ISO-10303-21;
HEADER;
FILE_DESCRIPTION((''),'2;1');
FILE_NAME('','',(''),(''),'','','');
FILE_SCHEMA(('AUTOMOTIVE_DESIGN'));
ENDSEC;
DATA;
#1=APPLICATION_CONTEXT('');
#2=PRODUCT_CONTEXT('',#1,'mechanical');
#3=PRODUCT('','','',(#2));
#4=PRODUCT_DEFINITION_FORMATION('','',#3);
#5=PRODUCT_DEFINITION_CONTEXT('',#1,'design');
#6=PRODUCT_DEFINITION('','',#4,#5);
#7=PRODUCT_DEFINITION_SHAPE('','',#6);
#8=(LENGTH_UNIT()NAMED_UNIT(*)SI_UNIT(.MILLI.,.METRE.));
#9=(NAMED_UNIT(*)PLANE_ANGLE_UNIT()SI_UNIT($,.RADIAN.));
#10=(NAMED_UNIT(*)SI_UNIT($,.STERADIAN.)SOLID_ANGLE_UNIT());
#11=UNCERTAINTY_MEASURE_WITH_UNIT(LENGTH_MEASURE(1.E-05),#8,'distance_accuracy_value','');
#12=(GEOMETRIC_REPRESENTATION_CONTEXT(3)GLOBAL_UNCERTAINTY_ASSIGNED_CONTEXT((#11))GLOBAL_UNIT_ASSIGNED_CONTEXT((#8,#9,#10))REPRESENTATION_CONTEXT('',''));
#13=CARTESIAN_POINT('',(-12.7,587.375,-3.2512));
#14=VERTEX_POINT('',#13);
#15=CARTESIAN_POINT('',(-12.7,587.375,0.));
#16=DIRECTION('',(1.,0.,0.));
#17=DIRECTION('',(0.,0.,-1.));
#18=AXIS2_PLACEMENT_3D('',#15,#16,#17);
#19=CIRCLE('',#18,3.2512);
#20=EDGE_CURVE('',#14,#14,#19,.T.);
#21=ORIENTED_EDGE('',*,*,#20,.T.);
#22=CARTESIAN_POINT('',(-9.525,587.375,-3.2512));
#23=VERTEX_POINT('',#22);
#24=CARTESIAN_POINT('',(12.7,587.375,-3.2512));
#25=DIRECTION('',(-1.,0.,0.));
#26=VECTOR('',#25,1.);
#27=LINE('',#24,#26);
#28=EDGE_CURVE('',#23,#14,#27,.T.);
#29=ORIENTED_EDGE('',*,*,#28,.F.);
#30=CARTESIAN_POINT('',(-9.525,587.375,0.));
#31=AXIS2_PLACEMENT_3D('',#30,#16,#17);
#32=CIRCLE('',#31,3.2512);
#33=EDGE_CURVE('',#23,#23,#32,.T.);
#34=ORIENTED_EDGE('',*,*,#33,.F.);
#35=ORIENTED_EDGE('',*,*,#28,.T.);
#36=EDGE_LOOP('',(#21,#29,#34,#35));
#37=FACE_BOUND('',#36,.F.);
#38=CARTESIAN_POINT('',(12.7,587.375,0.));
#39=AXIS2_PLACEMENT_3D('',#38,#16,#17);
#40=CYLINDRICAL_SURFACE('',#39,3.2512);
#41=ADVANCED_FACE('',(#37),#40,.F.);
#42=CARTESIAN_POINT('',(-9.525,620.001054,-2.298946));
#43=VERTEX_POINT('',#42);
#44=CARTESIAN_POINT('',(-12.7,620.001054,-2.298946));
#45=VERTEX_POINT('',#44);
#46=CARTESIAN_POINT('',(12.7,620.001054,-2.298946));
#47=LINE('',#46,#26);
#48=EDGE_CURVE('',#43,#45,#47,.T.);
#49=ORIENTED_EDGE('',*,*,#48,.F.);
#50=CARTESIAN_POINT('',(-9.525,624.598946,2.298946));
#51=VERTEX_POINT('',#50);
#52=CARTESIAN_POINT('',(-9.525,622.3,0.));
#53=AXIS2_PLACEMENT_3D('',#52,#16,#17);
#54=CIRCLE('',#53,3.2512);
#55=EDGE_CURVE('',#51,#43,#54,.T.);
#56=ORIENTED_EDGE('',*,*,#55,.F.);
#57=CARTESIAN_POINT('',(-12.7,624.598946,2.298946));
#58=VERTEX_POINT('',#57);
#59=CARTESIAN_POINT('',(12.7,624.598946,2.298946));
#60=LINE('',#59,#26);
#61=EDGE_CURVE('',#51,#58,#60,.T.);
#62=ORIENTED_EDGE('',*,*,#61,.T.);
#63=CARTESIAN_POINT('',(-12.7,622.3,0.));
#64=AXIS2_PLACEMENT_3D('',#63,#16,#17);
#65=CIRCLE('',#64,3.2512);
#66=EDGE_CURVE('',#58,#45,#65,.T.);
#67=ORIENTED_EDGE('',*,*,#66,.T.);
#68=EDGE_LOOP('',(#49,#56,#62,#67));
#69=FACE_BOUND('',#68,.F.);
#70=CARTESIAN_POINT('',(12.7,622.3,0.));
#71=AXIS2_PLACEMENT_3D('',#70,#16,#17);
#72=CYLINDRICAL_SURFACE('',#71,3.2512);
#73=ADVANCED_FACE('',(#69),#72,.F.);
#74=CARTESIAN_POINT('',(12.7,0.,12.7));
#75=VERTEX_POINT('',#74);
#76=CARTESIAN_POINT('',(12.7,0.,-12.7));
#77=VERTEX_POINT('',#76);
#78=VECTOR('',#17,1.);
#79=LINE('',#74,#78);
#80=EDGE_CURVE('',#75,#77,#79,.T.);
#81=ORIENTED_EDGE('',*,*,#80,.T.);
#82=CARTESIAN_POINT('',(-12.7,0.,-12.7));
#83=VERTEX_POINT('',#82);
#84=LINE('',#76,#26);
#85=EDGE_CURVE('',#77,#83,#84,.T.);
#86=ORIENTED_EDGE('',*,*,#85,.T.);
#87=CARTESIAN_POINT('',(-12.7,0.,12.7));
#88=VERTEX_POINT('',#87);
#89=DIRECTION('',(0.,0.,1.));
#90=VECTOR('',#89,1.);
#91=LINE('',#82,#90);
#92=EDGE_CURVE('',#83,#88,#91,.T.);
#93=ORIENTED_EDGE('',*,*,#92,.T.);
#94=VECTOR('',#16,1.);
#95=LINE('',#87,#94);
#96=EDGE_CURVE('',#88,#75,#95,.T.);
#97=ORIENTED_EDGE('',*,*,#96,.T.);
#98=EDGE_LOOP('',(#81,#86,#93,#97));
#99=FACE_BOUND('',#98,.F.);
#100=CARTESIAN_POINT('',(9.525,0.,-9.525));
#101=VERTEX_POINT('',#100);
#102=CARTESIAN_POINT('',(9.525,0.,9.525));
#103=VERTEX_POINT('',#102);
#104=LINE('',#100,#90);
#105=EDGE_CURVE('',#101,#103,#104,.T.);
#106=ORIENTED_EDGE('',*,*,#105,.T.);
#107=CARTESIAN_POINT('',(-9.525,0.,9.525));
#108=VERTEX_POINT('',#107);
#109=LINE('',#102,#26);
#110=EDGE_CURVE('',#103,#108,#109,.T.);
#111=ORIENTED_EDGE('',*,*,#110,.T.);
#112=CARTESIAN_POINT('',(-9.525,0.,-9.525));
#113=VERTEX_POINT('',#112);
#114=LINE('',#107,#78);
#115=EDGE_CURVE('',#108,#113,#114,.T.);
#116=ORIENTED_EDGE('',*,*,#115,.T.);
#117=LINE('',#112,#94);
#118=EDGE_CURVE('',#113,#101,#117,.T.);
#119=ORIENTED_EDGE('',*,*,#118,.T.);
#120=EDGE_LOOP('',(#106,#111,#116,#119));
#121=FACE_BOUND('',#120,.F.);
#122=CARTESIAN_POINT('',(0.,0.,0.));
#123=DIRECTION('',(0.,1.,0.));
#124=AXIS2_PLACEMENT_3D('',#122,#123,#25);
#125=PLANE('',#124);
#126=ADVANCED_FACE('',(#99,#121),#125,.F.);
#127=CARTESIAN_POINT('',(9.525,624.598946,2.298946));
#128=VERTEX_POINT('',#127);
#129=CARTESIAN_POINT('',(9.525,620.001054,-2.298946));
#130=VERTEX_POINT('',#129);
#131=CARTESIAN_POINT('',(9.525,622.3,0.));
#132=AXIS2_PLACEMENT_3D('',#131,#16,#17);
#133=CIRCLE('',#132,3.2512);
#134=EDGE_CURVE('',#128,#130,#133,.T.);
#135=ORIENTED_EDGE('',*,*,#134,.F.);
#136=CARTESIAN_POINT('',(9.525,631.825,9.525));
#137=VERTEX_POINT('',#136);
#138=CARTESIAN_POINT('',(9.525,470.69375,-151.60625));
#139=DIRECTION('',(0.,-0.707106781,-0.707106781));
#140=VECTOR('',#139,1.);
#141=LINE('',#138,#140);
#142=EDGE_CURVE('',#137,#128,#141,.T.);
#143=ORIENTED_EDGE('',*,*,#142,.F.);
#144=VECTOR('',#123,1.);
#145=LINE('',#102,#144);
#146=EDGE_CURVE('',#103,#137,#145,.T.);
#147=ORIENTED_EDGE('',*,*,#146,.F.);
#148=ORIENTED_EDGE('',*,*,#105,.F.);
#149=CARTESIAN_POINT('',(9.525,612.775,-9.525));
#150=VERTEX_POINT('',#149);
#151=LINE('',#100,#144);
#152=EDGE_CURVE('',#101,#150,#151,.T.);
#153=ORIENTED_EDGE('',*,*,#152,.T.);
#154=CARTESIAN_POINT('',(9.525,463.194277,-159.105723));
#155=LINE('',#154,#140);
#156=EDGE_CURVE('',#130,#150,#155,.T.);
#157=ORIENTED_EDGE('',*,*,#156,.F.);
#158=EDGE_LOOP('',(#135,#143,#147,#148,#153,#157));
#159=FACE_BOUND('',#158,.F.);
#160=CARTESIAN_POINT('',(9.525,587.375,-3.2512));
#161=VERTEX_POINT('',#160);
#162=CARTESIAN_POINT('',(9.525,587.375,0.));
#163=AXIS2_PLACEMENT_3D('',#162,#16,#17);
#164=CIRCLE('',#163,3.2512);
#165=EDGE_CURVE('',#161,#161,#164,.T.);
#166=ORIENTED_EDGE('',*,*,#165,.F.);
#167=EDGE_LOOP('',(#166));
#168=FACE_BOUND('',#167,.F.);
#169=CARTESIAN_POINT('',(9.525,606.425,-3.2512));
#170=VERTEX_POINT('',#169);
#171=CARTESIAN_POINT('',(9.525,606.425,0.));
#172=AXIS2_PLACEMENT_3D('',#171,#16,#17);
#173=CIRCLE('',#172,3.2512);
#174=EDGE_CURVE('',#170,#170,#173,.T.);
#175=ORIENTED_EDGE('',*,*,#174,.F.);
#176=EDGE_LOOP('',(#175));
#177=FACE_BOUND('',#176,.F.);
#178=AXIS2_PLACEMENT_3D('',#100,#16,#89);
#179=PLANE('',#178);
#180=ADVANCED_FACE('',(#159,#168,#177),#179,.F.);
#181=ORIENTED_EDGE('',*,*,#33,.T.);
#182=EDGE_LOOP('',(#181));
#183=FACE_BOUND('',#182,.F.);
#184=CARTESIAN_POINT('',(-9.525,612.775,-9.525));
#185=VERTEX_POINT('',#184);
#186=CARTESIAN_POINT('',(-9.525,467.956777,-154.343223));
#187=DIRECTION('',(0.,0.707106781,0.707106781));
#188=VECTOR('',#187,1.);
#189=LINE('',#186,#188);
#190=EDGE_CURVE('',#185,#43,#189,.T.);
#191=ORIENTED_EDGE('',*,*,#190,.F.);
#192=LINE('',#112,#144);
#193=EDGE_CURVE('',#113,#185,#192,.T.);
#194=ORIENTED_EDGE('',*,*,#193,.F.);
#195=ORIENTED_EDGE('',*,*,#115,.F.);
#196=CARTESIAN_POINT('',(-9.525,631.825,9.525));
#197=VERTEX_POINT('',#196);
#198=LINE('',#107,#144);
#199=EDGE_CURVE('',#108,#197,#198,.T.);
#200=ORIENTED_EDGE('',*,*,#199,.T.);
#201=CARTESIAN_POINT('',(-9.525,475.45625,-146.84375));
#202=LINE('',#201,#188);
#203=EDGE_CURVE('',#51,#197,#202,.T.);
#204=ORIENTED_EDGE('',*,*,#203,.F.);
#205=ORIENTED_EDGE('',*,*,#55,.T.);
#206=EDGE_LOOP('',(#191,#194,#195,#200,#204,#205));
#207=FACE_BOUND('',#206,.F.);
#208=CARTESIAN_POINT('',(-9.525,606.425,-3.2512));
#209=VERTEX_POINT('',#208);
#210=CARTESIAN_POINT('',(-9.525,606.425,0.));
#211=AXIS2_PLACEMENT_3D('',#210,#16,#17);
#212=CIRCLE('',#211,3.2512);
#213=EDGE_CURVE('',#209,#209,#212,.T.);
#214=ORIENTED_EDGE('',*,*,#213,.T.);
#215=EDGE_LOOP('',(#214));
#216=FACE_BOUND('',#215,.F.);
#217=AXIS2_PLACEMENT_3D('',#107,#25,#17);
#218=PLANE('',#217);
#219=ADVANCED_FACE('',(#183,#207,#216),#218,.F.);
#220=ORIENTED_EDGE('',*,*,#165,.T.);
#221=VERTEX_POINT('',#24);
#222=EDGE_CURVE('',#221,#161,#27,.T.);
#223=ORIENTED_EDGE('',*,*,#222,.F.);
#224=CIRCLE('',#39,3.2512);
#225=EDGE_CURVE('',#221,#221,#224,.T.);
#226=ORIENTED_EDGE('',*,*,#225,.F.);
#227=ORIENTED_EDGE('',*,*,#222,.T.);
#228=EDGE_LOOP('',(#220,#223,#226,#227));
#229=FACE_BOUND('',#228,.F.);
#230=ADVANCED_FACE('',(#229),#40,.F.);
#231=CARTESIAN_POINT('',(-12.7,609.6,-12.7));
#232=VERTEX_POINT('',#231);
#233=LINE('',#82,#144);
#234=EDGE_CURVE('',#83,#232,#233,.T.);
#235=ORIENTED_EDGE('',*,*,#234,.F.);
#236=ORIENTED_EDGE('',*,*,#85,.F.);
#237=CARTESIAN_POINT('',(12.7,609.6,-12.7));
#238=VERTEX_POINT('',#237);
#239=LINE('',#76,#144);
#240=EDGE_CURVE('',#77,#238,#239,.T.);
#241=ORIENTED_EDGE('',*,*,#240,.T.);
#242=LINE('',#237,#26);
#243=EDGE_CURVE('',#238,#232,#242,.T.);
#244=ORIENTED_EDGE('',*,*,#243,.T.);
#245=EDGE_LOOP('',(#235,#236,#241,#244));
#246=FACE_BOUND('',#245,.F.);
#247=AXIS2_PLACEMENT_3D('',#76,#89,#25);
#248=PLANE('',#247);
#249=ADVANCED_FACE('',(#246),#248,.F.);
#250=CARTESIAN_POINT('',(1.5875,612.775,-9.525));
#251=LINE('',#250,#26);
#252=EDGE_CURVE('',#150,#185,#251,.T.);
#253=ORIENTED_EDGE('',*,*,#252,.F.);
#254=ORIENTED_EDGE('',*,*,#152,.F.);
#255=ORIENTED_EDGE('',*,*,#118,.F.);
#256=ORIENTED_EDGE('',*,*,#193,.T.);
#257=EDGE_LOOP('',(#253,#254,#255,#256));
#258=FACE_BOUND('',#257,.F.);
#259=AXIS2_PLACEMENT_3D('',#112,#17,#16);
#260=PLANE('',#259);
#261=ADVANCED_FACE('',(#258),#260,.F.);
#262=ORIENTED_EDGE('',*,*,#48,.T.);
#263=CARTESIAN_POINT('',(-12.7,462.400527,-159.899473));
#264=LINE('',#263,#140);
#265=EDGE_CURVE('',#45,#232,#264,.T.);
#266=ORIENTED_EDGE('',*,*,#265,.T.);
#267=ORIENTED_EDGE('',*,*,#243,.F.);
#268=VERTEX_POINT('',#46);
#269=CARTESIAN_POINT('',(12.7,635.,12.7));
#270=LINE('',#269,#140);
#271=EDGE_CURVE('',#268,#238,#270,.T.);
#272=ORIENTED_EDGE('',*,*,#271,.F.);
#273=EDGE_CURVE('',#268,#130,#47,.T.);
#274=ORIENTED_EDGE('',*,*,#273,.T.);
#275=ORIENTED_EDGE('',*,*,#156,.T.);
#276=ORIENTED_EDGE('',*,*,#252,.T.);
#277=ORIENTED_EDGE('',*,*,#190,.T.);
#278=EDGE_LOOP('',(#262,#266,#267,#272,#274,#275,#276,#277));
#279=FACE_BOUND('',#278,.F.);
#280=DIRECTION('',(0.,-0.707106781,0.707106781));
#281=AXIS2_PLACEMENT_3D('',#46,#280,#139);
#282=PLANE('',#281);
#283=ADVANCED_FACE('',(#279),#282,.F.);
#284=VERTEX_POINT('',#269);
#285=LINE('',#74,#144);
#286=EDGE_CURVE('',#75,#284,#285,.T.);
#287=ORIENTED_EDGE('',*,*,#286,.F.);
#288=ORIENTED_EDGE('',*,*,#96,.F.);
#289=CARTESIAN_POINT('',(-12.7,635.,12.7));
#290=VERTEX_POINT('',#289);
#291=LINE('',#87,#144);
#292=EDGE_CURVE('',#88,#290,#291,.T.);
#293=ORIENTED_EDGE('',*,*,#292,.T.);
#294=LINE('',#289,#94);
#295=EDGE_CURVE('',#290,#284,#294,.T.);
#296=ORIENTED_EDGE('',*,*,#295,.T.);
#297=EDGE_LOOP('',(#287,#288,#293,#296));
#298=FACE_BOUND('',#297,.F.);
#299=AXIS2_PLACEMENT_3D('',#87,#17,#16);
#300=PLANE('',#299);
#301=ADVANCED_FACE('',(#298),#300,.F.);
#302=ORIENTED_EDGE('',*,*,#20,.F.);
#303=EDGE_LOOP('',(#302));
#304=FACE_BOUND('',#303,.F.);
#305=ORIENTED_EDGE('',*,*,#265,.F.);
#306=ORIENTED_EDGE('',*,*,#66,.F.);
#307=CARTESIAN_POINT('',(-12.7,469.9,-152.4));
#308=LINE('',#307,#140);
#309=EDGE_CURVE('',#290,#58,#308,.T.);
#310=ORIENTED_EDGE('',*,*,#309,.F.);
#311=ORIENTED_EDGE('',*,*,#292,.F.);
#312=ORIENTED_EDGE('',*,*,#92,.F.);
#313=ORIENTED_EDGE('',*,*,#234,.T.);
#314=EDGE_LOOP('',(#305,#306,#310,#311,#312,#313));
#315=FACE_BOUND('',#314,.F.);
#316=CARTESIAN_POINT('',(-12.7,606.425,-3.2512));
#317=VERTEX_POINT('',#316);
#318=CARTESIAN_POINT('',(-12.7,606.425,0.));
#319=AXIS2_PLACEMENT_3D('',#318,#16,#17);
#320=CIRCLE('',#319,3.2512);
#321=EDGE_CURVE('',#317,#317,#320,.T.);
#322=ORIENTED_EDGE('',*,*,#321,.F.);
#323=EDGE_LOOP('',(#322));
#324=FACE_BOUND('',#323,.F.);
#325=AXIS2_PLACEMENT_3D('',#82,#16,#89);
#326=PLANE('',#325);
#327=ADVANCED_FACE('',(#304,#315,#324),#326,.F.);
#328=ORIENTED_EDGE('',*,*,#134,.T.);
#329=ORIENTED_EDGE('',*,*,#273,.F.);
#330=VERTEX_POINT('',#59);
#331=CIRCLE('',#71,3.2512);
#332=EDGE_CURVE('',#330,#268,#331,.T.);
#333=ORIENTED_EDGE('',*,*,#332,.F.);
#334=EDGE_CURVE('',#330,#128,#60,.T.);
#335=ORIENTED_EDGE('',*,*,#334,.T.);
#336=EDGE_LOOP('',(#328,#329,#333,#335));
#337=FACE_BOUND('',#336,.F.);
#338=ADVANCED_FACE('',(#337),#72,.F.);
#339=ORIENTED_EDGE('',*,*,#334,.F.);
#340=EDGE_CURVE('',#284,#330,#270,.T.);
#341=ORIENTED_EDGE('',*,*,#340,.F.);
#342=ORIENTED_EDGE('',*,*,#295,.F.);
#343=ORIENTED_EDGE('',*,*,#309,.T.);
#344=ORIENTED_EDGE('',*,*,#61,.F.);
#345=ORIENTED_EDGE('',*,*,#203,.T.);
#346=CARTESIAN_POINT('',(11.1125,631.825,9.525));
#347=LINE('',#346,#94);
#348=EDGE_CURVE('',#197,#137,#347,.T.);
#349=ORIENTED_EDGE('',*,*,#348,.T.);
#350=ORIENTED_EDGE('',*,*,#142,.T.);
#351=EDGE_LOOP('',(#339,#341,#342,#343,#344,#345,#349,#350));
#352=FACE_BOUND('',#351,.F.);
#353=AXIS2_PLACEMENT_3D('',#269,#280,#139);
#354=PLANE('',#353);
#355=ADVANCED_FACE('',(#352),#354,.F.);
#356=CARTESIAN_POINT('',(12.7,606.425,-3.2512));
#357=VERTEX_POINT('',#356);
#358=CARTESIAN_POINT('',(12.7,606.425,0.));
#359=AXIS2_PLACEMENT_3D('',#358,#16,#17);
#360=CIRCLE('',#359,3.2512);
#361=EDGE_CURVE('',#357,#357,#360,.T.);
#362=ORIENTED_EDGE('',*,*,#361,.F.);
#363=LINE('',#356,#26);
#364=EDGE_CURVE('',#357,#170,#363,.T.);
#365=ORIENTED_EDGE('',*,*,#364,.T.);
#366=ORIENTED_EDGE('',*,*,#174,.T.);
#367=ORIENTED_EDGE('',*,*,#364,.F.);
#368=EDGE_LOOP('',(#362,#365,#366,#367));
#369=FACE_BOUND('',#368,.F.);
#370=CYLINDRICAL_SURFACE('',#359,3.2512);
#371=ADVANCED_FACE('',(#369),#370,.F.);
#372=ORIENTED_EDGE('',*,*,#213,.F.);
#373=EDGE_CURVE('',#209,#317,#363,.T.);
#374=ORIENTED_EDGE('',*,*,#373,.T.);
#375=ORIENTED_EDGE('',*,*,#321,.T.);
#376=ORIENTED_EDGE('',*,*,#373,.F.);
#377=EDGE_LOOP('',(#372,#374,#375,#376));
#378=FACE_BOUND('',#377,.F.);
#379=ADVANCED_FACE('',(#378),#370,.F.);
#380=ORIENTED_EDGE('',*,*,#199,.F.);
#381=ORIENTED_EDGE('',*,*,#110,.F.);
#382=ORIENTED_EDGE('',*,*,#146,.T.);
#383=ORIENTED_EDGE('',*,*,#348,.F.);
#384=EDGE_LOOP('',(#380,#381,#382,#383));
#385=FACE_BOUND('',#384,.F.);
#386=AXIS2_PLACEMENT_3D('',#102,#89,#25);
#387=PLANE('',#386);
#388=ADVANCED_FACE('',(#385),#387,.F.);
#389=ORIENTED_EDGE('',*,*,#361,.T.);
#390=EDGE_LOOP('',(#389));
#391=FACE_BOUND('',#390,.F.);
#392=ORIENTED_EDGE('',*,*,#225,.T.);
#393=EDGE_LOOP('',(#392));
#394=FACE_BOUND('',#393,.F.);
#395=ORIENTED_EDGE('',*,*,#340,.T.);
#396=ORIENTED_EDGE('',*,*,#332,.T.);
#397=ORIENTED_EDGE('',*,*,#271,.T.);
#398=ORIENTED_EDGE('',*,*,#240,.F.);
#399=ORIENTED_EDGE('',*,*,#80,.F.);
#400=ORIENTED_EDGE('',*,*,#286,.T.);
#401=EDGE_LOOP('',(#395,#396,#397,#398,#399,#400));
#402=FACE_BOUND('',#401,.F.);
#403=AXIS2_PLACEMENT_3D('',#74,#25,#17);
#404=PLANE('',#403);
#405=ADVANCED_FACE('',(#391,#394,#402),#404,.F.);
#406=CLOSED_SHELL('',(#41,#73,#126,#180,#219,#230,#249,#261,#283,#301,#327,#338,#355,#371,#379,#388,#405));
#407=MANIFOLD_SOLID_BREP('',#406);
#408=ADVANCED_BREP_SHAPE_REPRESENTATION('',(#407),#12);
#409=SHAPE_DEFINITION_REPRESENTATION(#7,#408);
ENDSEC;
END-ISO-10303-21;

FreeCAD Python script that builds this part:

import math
import FreeCAD as App
import Part
import Sketcher
from FreeCAD import Vector
Q = App.Units.Quantity

doc = App.newDocument("Part")
body = doc.addObject("PartDesign::Body", "Body")

# Sketch on XZ plane
sketch1 = doc.addObject("Sketcher::SketchObject", "Sketch")
body.addObject(sketch1)
sketch1.AttachmentSupport = (doc.XZ_Plane, [""])
sketch1.MapMode = "FlatFace"
sketch1.addGeometry(Part.LineSegment(Vector(13, 13, 0), Vector(13, -13, 0)), False)
sketch1.addGeometry(Part.LineSegment(Vector(13, -13, 0), Vector(-13, -13, 0)), False)
sketch1.addGeometry(Part.LineSegment(Vector(-13, -13, 0), Vector(-13, 13, 0)), False)
sketch1.addGeometry(Part.LineSegment(Vector(-13, 13, 0), Vector(13, 13, 0)), False)
sketch1.addGeometry(Part.LineSegment(Vector(10, 10, 0), Vector(-10, 10, 0)), False)
sketch1.addGeometry(Part.LineSegment(Vector(-10, 10, 0), Vector(-10, -10, 0)), False)
sketch1.addGeometry(Part.LineSegment(Vector(-10, -10, 0), Vector(10, -10, 0)), False)
sketch1.addGeometry(Part.LineSegment(Vector(10, -10, 0), Vector(10, 10, 0)), False)
sketch1.addConstraint(Sketcher.Constraint("Coincident", 0, 2, 1, 1))
sketch1.addConstraint(Sketcher.Constraint("Coincident", 1, 2, 2, 1))
sketch1.addConstraint(Sketcher.Constraint("Coincident", 2, 2, 3, 1))
sketch1.addConstraint(Sketcher.Constraint("Coincident", 3, 2, 0, 1))
sketch1.addConstraint(Sketcher.Constraint("Coincident", 4, 2, 5, 1))
sketch1.addConstraint(Sketcher.Constraint("Coincident", 5, 2, 6, 1))
sketch1.addConstraint(Sketcher.Constraint("Coincident", 6, 2, 7, 1))
sketch1.addConstraint(Sketcher.Constraint("Coincident", 7, 2, 4, 1))
sketch1.addConstraint(Sketcher.Constraint("Vertical", 0))
sketch1.addConstraint(Sketcher.Constraint("Horizontal", 1))
sketch1.addConstraint(Sketcher.Constraint("Vertical", 2))
sketch1.addConstraint(Sketcher.Constraint("Horizontal", 3))
sketch1.addConstraint(Sketcher.Constraint("Horizontal", 4))
sketch1.addConstraint(Sketcher.Constraint("Vertical", 5))
sketch1.addConstraint(Sketcher.Constraint("Horizontal", 6))
sketch1.addConstraint(Sketcher.Constraint("Vertical", 7))
sketch1.addConstraint(Sketcher.Constraint("Symmetric", 0, 2, 2, 2, -1, 1))
sketch1.addConstraint(Sketcher.Constraint("Symmetric", 4, 2, 6, 2, -1, 1))
sketch1.addConstraint(Sketcher.Constraint("Equal", 3, 0))
sketch1.addConstraint(Sketcher.Constraint("Equal", 6, 5))
sketch1.addConstraint(Sketcher.Constraint("DistanceX", 1, 2, 1, 1, Q("1 in")))
sketch1.addConstraint(Sketcher.Constraint("DistanceX", 2, 2, 4, 2, Q("0.125 in")))
pad1 = doc.addObject("PartDesign::Pad", "Pad")
body.addObject(pad1)
pad1.Profile = sketch1
pad1.Length = Q("25 in")
pad1.Reversed = True

# Sketch on YZ plane
sketch2 = doc.addObject("Sketcher::SketchObject", "Sketch001")
body.addObject(sketch2)
sketch2.AttachmentSupport = (doc.YZ_Plane, [""])
sketch2.MapMode = "FlatFace"
sketch2.AttachmentOffset = App.Placement(Vector(0, 0, 0.5 * 25.4), App.Rotation())
sketch2.addGeometry(Part.LineSegment(Vector(609.6, -12.7, 0), Vector(635, -12.7, 0)), False)
sketch2.addGeometry(Part.LineSegment(Vector(635, -12.7, 0), Vector(635, 12.7, 0)), False)
sketch2.addGeometry(Part.LineSegment(Vector(635, 12.7, 0), Vector(624.6, 2.3, 0)), False)
sketch2.addGeometry(Part.ArcOfCircle(Part.Circle(Vector(622.3, 0, 0), Vector(0, 0, 1), 3.3), math.radians(45), math.radians(225)), False)
sketch2.addGeometry(Part.LineSegment(Vector(620, -2.3, 0), Vector(609.6, -12.7, 0)), False)
sketch2.addGeometry(Part.Circle(Vector(606.4, 0, 0), Vector(0, 0, 1), 3.3), False)
sketch2.addGeometry(Part.Circle(Vector(587.4, 0, 0), Vector(0, 0, 1), 3.3), False)
sketch2.addConstraint(Sketcher.Constraint("Coincident", 0, 2, 1, 1))
sketch2.addConstraint(Sketcher.Constraint("Coincident", 1, 2, 2, 1))
sketch2.addConstraint(Sketcher.Constraint("Coincident", 2, 2, 3, 1))
sketch2.addConstraint(Sketcher.Constraint("Coincident", 3, 2, 4, 1))
sketch2.addConstraint(Sketcher.Constraint("Coincident", 4, 2, 0, 1))
sketch2.addConstraint(Sketcher.Constraint("Horizontal", 0))
sketch2.addConstraint(Sketcher.Constraint("Vertical", 1))
sketch2.addConstraint(Sketcher.Constraint("Equal", 3, 5))
sketch2.addConstraint(Sketcher.Constraint("Equal", 5, 6))
sketch2.addConstraint(Sketcher.Constraint("PointOnObject", 3, 3, -1))
sketch2.addConstraint(Sketcher.Constraint("PointOnObject", 5, 3, -1))
sketch2.addConstraint(Sketcher.Constraint("PointOnObject", 6, 3, -1))
sketch2.addConstraint(Sketcher.Constraint("Parallel", 2, 4))
sketch2.addConstraint(Sketcher.Constraint("Equal", 0, 1))
sketch2.addConstraint(Sketcher.Constraint("Equal", 2, 4))
sketch2.addConstraint(Sketcher.Constraint("DistanceX", 0, 1, 0, 2, Q("1 in")))
sketch2.addConstraint(Sketcher.Constraint("Diameter", 5, Q("0.256 in")))
sketch2.addConstraint(Sketcher.Constraint("DistanceX", 6, 3, 5, 3, Q("0.75 in")))
sketch2.addConstraint(Sketcher.Constraint("DistanceX", -1, 1, 0, 2, Q("25 in")))
sketch2.addConstraint(Sketcher.Constraint("Angle", 2, Q("-135 deg")))
sketch2.addConstraint(Sketcher.Constraint("DistanceX", 5, 3, 0, 2, Q("1.125 in")))
sketch2.addConstraint(Sketcher.Constraint("DistanceX", -1, 1, 3, 3, Q("24.5 in")))
pocket1 = doc.addObject("PartDesign::Pocket", "Pocket")
body.addObject(pocket1)
pocket1.Profile = sketch2
pocket1.Type = "ThroughAll"

doc.recompute()
